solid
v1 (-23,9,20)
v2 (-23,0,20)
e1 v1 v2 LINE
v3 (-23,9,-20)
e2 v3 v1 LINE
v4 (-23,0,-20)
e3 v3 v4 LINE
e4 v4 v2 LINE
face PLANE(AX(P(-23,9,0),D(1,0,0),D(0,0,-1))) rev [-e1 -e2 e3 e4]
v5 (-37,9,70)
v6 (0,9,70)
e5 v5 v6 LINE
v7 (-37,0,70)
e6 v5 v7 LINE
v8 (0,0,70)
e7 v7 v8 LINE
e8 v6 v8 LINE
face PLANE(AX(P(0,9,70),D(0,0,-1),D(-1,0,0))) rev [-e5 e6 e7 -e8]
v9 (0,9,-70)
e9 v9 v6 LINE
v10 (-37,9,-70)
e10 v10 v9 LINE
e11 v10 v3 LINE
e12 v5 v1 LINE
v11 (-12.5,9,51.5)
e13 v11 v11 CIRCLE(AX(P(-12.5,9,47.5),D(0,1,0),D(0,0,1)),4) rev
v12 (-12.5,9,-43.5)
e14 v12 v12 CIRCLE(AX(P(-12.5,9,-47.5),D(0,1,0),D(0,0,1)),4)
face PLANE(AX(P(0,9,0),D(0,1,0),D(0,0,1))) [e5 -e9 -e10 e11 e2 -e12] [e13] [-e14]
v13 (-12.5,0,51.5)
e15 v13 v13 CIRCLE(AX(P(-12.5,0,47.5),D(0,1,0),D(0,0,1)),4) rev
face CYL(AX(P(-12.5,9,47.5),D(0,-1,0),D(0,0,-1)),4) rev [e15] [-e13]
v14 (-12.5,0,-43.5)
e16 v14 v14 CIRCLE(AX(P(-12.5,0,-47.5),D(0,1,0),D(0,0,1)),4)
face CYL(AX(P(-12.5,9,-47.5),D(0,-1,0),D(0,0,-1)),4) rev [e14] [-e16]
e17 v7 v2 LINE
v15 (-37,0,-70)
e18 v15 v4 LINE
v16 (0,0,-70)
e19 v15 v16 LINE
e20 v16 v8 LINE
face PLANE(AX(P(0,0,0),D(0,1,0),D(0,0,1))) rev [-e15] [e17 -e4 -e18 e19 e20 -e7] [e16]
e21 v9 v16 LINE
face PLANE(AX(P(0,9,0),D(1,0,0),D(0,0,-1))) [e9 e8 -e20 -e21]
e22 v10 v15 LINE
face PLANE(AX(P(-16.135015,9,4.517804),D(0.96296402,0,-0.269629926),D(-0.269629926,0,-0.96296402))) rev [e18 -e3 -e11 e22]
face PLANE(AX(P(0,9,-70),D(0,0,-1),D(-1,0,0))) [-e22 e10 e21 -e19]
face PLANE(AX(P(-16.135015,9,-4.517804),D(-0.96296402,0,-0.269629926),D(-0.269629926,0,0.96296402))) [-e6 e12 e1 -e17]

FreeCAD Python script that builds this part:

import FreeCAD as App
import Part
import Sketcher
from FreeCAD import Vector
Q = App.Units.Quantity


def add_polygon(sketch, points):
    """Adds a closed chain of lines whose ends are joined by coincident constraints."""
    first, n = sketch.GeometryCount, len(points)
    for a, b in zip(points, points[1:] + points[:1]):
        sketch.addGeometry(Part.LineSegment(App.Vector(*a, 0), App.Vector(*b, 0)), False)
    for i in range(n):
        sketch.addConstraint(Sketcher.Constraint("Coincident", first + i, 2, first + (i + 1) % n, 1))

doc = App.newDocument("Part")
params = doc.addObject("Spreadsheet::Sheet", "Params")
for row, (alias, value) in enumerate([
    ("sketch1_diameter", "8 mm"),
    ("sketch1_width", "37 mm"),
    ("sketch1_height", "140 mm"),
    ("sketch1_height2", "40 mm"),
    ("pad1_length", "9 mm"),
], start=1):
    params.set(f"A{row}", alias)
    params.set(f"B{row}", "=" + value)
    params.setAlias(f"B{row}", alias)

body = doc.addObject("PartDesign::Body", "Body")

sketch1 = doc.addObject("Sketcher::SketchObject", "Sketch")
body.addObject(sketch1)
sketch1.AttachmentSupport = (doc.XZ_Plane, [""])
sketch1.MapMode = "FlatFace"
add_polygon(sketch1, [(0, 70), (0, -70), (-37, -70), (-23, -20), (-23, 20), (-37, 70)])
sketch1.addGeometry(Part.Circle(Vector(-12.5, 47.5, 0), Vector(0, 0, 1), 4), False)
sketch1.addGeometry(Part.Circle(Vector(-12.5, -47.5, 0), Vector(0, 0, 1), 4), False)
sketch1.addConstraint([
    Sketcher.Constraint("Vertical", 0),
    Sketcher.Constraint("Horizontal", 1),
    Sketcher.Constraint("Vertical", 3),
    Sketcher.Constraint("Horizontal", 5),
    Sketcher.Constraint("Equal", 6, 7),
    Sketcher.Constraint("Symmetric", 0, 2, 5, 2, -1, 1),
    Sketcher.Constraint("Symmetric", 6, 3, 7, 3, -1),
    Sketcher.Constraint("Vertical", 1, 2, 4, 2),
    Sketcher.Constraint("Equal", 2, 4),
    Sketcher.Constraint("Diameter", 6, Q("8 mm")),
    Sketcher.Constraint("DistanceX", 1, 2, 1, 1, Q("37 mm")),
    Sketcher.Constraint("DistanceY", 0, 2, 0, 1, Q("140 mm")),
    Sketcher.Constraint("DistanceY", 3, 1, 3, 2, Q("40 mm")),
    Sketcher.Constraint("DistanceX", 2, 2, -1, 1, Q("23 mm")),
    Sketcher.Constraint("DistanceY", 7, 3, 6, 3, Q("95 mm")),
    Sketcher.Constraint("DistanceX", 6, 3, -1, 1, Q("12.5 mm")),
])
sketch1.setExpression("Constraints[15]", "Params.sketch1_diameter")
sketch1.setExpression("Constraints[16]", "Params.sketch1_width")
sketch1.setExpression("Constraints[17]", "Params.sketch1_height")
sketch1.setExpression("Constraints[18]", "Params.sketch1_height2")
pad1 = doc.addObject("PartDesign::Pad", "Pad")
body.addObject(pad1)
pad1.Profile = sketch1
pad1.setExpression("Length", "Params.pad1_length")
pad1.Reversed = True

doc.recompute()
